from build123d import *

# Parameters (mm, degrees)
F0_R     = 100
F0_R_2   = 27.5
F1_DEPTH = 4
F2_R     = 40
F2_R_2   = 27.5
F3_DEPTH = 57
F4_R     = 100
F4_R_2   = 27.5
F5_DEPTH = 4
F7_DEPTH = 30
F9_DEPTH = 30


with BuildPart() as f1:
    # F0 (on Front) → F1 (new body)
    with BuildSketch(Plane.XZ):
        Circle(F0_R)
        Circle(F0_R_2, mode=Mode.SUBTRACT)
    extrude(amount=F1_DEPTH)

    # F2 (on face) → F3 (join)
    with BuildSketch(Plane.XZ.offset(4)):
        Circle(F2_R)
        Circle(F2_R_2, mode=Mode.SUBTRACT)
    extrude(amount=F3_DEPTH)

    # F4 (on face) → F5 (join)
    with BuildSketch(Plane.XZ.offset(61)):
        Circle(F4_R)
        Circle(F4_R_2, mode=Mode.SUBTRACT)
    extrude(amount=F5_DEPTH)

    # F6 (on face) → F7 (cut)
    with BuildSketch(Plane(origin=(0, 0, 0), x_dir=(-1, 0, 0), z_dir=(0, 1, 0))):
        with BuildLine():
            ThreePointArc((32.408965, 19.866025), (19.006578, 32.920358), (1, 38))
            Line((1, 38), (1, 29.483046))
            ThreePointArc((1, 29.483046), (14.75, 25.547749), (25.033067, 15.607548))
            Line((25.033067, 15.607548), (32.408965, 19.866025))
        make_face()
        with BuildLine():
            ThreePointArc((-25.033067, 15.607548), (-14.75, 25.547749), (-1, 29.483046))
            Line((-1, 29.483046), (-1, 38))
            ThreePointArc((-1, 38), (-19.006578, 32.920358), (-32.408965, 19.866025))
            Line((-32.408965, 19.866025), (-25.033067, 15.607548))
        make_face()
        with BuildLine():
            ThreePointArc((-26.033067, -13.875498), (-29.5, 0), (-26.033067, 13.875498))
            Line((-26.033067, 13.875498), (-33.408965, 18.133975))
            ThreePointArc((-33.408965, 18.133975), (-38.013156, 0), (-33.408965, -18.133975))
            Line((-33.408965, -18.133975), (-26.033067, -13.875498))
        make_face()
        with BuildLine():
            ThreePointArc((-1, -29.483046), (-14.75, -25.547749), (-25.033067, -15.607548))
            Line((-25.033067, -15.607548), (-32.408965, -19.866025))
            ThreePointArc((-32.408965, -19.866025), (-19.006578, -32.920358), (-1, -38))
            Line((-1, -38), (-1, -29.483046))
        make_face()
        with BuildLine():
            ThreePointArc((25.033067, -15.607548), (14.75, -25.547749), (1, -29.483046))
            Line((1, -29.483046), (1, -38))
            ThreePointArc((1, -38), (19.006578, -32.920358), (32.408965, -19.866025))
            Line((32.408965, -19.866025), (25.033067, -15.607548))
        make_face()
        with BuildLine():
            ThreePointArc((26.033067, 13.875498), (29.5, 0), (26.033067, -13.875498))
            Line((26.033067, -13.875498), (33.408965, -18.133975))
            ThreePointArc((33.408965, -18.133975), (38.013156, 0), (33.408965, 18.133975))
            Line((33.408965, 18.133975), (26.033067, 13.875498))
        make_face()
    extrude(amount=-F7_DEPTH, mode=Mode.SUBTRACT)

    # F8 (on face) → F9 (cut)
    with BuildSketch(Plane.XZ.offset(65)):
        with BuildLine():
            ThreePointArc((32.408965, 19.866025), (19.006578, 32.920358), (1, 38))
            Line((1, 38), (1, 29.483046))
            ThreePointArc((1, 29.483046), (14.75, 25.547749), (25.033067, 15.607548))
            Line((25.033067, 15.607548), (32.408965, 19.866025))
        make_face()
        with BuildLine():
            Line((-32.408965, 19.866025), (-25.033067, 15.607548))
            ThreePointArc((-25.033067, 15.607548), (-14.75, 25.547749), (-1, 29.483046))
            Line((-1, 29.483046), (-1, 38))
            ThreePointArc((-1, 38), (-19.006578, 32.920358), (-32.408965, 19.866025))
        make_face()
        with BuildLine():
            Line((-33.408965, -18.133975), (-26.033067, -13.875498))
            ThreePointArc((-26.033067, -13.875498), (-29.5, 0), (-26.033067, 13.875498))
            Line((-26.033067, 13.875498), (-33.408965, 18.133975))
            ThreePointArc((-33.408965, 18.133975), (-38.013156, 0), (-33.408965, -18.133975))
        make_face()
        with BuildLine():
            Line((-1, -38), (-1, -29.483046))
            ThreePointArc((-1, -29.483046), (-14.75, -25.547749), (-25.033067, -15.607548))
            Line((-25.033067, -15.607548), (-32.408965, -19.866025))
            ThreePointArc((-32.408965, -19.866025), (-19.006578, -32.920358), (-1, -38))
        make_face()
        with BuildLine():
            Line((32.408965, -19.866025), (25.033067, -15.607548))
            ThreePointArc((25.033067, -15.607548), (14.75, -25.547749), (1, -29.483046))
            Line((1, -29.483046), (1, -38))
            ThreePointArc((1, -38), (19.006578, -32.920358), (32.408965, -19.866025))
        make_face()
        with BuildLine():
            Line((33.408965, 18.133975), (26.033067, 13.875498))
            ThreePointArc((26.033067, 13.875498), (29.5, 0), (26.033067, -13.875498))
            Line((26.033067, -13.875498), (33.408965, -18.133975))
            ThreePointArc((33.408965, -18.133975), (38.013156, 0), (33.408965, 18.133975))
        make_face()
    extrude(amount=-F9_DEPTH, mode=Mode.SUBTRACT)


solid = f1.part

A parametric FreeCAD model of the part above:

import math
import FreeCAD as App
import Part
import Sketcher
from FreeCAD import Vector

doc = App.newDocument("Part")
params = doc.addObject("Spreadsheet::Sheet", "Params")
for row, (alias, value) in enumerate([
    ("sketch1_diameter", "200 mm"),
    ("sketch1_diameter2", "55 mm"),
    ("pad1_length", "4 mm"),
    ("sketch2_diameter", "80 mm"),
    ("sketch2_diameter2", "55 mm"),
    ("pad2_length", "57 mm"),
    ("sketch3_diameter", "200 mm"),
    ("sketch3_diameter2", "55 mm"),
    ("pad3_length", "4 mm"),
    ("pocket1_length", "30 mm"),
    ("pocket2_length", "30 mm"),
], start=1):
    params.set(f"A{row}", alias)
    params.set(f"B{row}", "=" + value)
    params.setAlias(f"B{row}", alias)

body = doc.addObject("PartDesign::Body", "Body")

# Sketch on XZ plane
sketch1 = body.newObject("Sketcher::SketchObject", "Sketch")
sketch1.AttachmentSupport = (doc.getObject("XZ_Plane"), [""])
sketch1.MapMode = "FlatFace"
sketch1.addGeometry([
    Part.Circle(Vector(0, 0, 0), Vector(0, 0, 1), 100),
    Part.Circle(Vector(0, 0, 0), Vector(0, 0, 1), 28),
], False)
sketch1.addConstraint([
    Sketcher.Constraint("Coincident", 0, 3, -1, 1),
    Sketcher.Constraint("Coincident", 1, 3, -1, 1),
    Sketcher.Constraint("Diameter", 0, 200.0),
    Sketcher.Constraint("Diameter", 1, 55.0),
])
sketch1.setExpression("Constraints[2]", "Params.sketch1_diameter")
sketch1.setExpression("Constraints[3]", "Params.sketch1_diameter2")
pad1 = body.newObject("PartDesign::Pad", "Pad")
pad1.Profile = sketch1
pad1.setExpression("Length", "Params.pad1_length")

# Sketch on XZ plane
sketch2 = body.newObject("Sketcher::SketchObject", "Sketch001")
sketch2.AttachmentSupport = (doc.getObject("XZ_Plane"), [""])
sketch2.MapMode = "FlatFace"
sketch2.AttachmentOffset = App.Placement(Vector(0, 0, 4), App.Rotation())
sketch2.addGeometry([
    Part.Circle(Vector(0, 0, 0), Vector(0, 0, 1), 40),
    Part.Circle(Vector(0, 0, 0), Vector(0, 0, 1), 28),
], False)
sketch2.addConstraint([
    Sketcher.Constraint("Coincident", 0, 3, -1, 1),
    Sketcher.Constraint("Coincident", 1, 3, -1, 1),
    Sketcher.Constraint("Diameter", 0, 80.0),
    Sketcher.Constraint("Diameter", 1, 55.0),
])
sketch2.setExpression("Constraints[2]", "Params.sketch2_diameter")
sketch2.setExpression("Constraints[3]", "Params.sketch2_diameter2")
pad2 = body.newObject("PartDesign::Pad", "Pad001")
pad2.Profile = sketch2
pad2.setExpression("Length", "Params.pad2_length")

# Sketch on XZ plane
sketch3 = body.newObject("Sketcher::SketchObject", "Sketch002")
sketch3.AttachmentSupport = (doc.getObject("XZ_Plane"), [""])
sketch3.MapMode = "FlatFace"
sketch3.AttachmentOffset = App.Placement(Vector(0, 0, 61), App.Rotation())
sketch3.addGeometry([
    Part.Circle(Vector(0, 0, 0), Vector(0, 0, 1), 100),
    Part.Circle(Vector(0, 0, 0), Vector(0, 0, 1), 28),
], False)
sketch3.addConstraint([
    Sketcher.Constraint("Coincident", 0, 3, -1, 1),
    Sketcher.Constraint("Coincident", 1, 3, -1, 1),
    Sketcher.Constraint("Diameter", 0, 200.0),
    Sketcher.Constraint("Diameter", 1, 55.0),
])
sketch3.setExpression("Constraints[2]", "Params.sketch3_diameter")
sketch3.setExpression("Constraints[3]", "Params.sketch3_diameter2")
pad3 = body.newObject("PartDesign::Pad", "Pad002")
pad3.Profile = sketch3
pad3.setExpression("Length", "Params.pad3_length")

# Sketch on XZ plane
sketch4 = body.newObject("Sketcher::SketchObject", "Sketch003")
sketch4.AttachmentSupport = (doc.getObject("XZ_Plane"), [""])
sketch4.MapMode = "FlatFace"
sketch4.addGeometry([
    Part.ArcOfCircle(Part.Circle(Vector(0.000001, 0, 0), Vector(0, 0, 1), 38.013156), math.radians(91.507437), math.radians(148.492565)),  # 0
    Part.LineSegment(Vector(-1, 38, 0), Vector(-1, 29.483046, 0)),  # 1
    Part.ArcOfCircle(Part.Circle(Vector(0.000002, -0.000003, 0), Vector(0, 0, 1), 29.500003), math.radians(91.942605), math.radians(148.057396)),  # 2
    Part.LineSegment(Vector(-25.033067, 15.607548, 0), Vector(-32.408965, 19.866025, 0)),  # 3
    Part.ArcOfCircle(Part.Circle(Vector(-0.000002, -0.000003, 0), Vector(0, 0, 1), 29.500003), math.radians(31.942604), math.radians(88.057395)),  # 4
    Part.LineSegment(Vector(1, 29.483046, 0), Vector(1, 38, 0)),  # 5
    Part.ArcOfCircle(Part.Circle(Vector(-0.000001, 0, 0), Vector(0, 0, 1), 38.013156), math.radians(31.507435), math.radians(88.492563)),  # 6
    Part.LineSegment(Vector(32.408965, 19.866025, 0), Vector(25.033067, 15.607548, 0)),  # 7
    Part.ArcOfCircle(Part.Circle(Vector(-0.000003, 0, 0), Vector(0, 0, 1), 29.500003), math.radians(-28.057396), math.radians(28.057396)),  # 8
    Part.LineSegment(Vector(26.033067, 13.875498, 0), Vector(33.408965, 18.133975, 0)),  # 9
    Part.ArcOfCircle(Part.Circle(Vector(0.000004, 0, 0), Vector(0, 0, 1), 38.013152), math.radians(-28.492568), math.radians(28.492568)),  # 10
    Part.LineSegment(Vector(33.408965, -18.133975, 0), Vector(26.033067, -13.875498, 0)),  # 11
    Part.ArcOfCircle(Part.Circle(Vector(-0.000002, 0.000003, 0), Vector(0, 0, 1), 29.500003), math.radians(-88.057395), math.radians(-31.942604)),  # 12
    Part.LineSegment(Vector(25.033067, -15.607548, 0), Vector(32.408965, -19.866025, 0)),  # 13
    Part.ArcOfCircle(Part.Circle(Vector(-0.000001, 0, 0), Vector(0, 0, 1), 38.013156), math.radians(-88.492563), math.radians(-31.507435)),  # 14
    Part.LineSegment(Vector(1, -38, 0), Vector(1, -29.483046, 0)),  # 15
    Part.ArcOfCircle(Part.Circle(Vector(0.000002, 0.000003, 0), Vector(0, 0, 1), 29.500003), math.radians(-148.057396), math.radians(-91.942605)),  # 16
    Part.LineSegment(Vector(-1, -29.483046, 0), Vector(-1, -38, 0)),  # 17
    Part.ArcOfCircle(Part.Circle(Vector(0.000001, 0, 0), Vector(0, 0, 1), 38.013156), math.radians(-148.492565), math.radians(-91.507437)),  # 18
    Part.LineSegment(Vector(-32.408965, -19.866025, 0), Vector(-25.033067, -15.607548, 0)),  # 19
    Part.ArcOfCircle(Part.Circle(Vector(0.000003, 0, 0), Vector(0, 0, 1), 29.500003), math.radians(151.942604), math.radians(208.057396)),  # 20
    Part.LineSegment(Vector(-26.033067, -13.875498, 0), Vector(-33.408965, -18.133975, 0)),  # 21
    Part.ArcOfCircle(Part.Circle(Vector(-0.000004, 0, 0), Vector(0, 0, 1), 38.013152), math.radians(151.507432), math.radians(208.492568)),  # 22
    Part.LineSegment(Vector(-33.408965, 18.133975, 0), Vector(-26.033067, 13.875498, 0)),  # 23
], False)
sketch4.addConstraint([
    Sketcher.Constraint("Coincident", 0, 1, 1, 1),
    Sketcher.Constraint("Coincident", 1, 2, 2, 1),
    Sketcher.Constraint("Coincident", 2, 2, 3, 1),
    Sketcher.Constraint("Coincident", 3, 2, 0, 2),
    Sketcher.Constraint("Coincident", 4, 2, 5, 1),
    Sketcher.Constraint("Coincident", 5, 2, 6, 2),
    Sketcher.Constraint("Coincident", 6, 1, 7, 1),
    Sketcher.Constraint("Coincident", 7, 2, 4, 1),
    Sketcher.Constraint("Coincident", 8, 2, 9, 1),
    Sketcher.Constraint("Coincident", 9, 2, 10, 2),
    Sketcher.Constraint("Coincident", 10, 1, 11, 1),
    Sketcher.Constraint("Coincident", 11, 2, 8, 1),
    Sketcher.Constraint("Coincident", 12, 2, 13, 1),
    Sketcher.Constraint("Coincident", 13, 2, 14, 2),
    Sketcher.Constraint("Coincident", 14, 1, 15, 1),
    Sketcher.Constraint("Coincident", 15, 2, 12, 1),
    Sketcher.Constraint("Coincident", 16, 2, 17, 1),
    Sketcher.Constraint("Coincident", 17, 2, 18, 2),
    Sketcher.Constraint("Coincident", 18, 1, 19, 1),
    Sketcher.Constraint("Coincident", 19, 2, 16, 1),
    Sketcher.Constraint("Coincident", 20, 2, 21, 1),
    Sketcher.Constraint("Coincident", 21, 2, 22, 2),
    Sketcher.Constraint("Coincident", 22, 1, 23, 1),
    Sketcher.Constraint("Coincident", 23, 2, 20, 1),
    Sketcher.Constraint("Vertical", 1),
    Sketcher.Constraint("Vertical", 5),
    Sketcher.Constraint("Vertical", 15),
    Sketcher.Constraint("Vertical", 17),
    Sketcher.Constraint("Coincident", 0, 3, -1, 1),
    Sketcher.Constraint("Coincident", 2, 3, -1, 1),
    Sketcher.Constraint("Coincident", 4, 3, -1, 1),
    Sketcher.Constraint("Coincident", 6, 3, -1, 1),
    Sketcher.Constraint("Coincident", 8, 3, -1, 1),
    Sketcher.Constraint("Coincident", 10, 3, -1, 1),
    Sketcher.Constraint("Coincident", 12, 3, -1, 1),
    Sketcher.Constraint("Coincident", 14, 3, -1, 1),
    Sketcher.Constraint("Coincident", 16, 3, -1, 1),
    Sketcher.Constraint("Coincident", 18, 3, -1, 1),
    Sketcher.Constraint("Coincident", 20, 3, -1, 1),
    Sketcher.Constraint("Coincident", 22, 3, -1, 1),
    Sketcher.Constraint("DistanceX", 0, 1, -1, 1, 1.0),
    Sketcher.Constraint("DistanceY", -1, 1, 0, 1, 38.0),
    Sketcher.Constraint("DistanceX", -1, 1, 4, 2, 1.0),
    Sketcher.Constraint("DistanceY", -1, 1, 5, 2, 38.0),
    Sketcher.Constraint("DistanceX", -1, 1, 14, 1, 1.0),
    Sketcher.Constraint("DistanceY", 14, 1, -1, 1, 38.0),
    Sketcher.Constraint("DistanceX", 16, 2, -1, 1, 1.0),
    Sketcher.Constraint("DistanceY", 17, 2, -1, 1, 38.0),
    Sketcher.Constraint("DistanceX", 7, 2, 8, 2, 1.0),
    Sketcher.Constraint("DistanceX", 6, 1, 9, 2, 1.0),
    Sketcher.Constraint("DistanceX", 12, 2, 11, 2, 1.0),
    Sketcher.Constraint("DistanceX", 13, 2, 10, 1, 1.0),
    Sketcher.Constraint("DistanceX", 20, 2, 19, 2, 1.0),
    Sketcher.Constraint("DistanceX", 21, 2, 18, 1, 1.0),
    Sketcher.Constraint("DistanceX", 22, 1, 3, 2, 1.0),
    Sketcher.Constraint("DistanceX", 23, 2, 2, 2, 1.0),
    Sketcher.Constraint("Radius", 10, 38.013152),
    Sketcher.Constraint("Radius", 22, 38.013152),
    Sketcher.Constraint("Radius", 2, 29.500003),
    Sketcher.Constraint("Radius", 4, 29.500003),
    Sketcher.Constraint("Radius", 8, 29.500003),
    Sketcher.Constraint("Radius", 12, 29.500003),
    Sketcher.Constraint("Radius", 16, 29.500003),
    Sketcher.Constraint("Radius", 20, 29.500003),
    Sketcher.Constraint("DistanceY", -1, 1, 8, 2, 13.875498),
    Sketcher.Constraint("DistanceY", 20, 2, -1, 1, 13.875498),
    Sketcher.Constraint("DistanceY", 2, 2, 1, 2, 13.875498),
    Sketcher.Constraint("DistanceX", 3, 2, 2, 2, 7.375898),
    Sketcher.Constraint("DistanceX", 7, 2, 6, 1, 7.375898),
    Sketcher.Constraint("DistanceX", 8, 2, 10, 1, 7.375898),
    Sketcher.Constraint("DistanceX", 11, 2, 10, 1, 7.375898),
    Sketcher.Constraint("DistanceX", 18, 1, 2, 2, 7.375898),
])
pocket1 = body.newObject("PartDesign::Pocket", "Pocket")
pocket1.Profile = sketch4
pocket1.setExpression("Length", "Params.pocket1_length")
pocket1.Reversed = True

# Sketch on XZ plane
sketch5 = body.newObject("Sketcher::SketchObject", "Sketch004")
sketch5.AttachmentSupport = (doc.getObject("XZ_Plane"), [""])
sketch5.MapMode = "FlatFace"
sketch5.AttachmentOffset = App.Placement(Vector(0, 0, 65), App.Rotation())
sketch5.addGeometry([
    Part.ArcOfCircle(Part.Circle(Vector(-0.000001, 0, 0), Vector(0, 0, 1), 38.013156), math.radians(31.507435), math.radians(88.492563)),  # 0
    Part.LineSegment(Vector(1, 38, 0), Vector(1, 29.483046, 0)),  # 1
    Part.ArcOfCircle(Part.Circle(Vector(-0.000002, -0.000003, 0), Vector(0, 0, 1), 29.500003), math.radians(31.942604), math.radians(88.057395)),  # 2
    Part.LineSegment(Vector(25.033067, 15.607548, 0), Vector(32.408965, 19.866025, 0)),  # 3
    Part.LineSegment(Vector(-32.408965, 19.866025, 0), Vector(-25.033067, 15.607548, 0)),  # 4
    Part.ArcOfCircle(Part.Circle(Vector(0.000002, -0.000003, 0), Vector(0, 0, 1), 29.500003), math.radians(91.942605), math.radians(148.057396)),  # 5
    Part.LineSegment(Vector(-1, 29.483046, 0), Vector(-1, 38, 0)),  # 6
    Part.ArcOfCircle(Part.Circle(Vector(0.000001, 0, 0), Vector(0, 0, 1), 38.013156), math.radians(91.507437), math.radians(148.492565)),  # 7
    Part.LineSegment(Vector(-33.408965, -18.133975, 0), Vector(-26.033067, -13.875498, 0)),  # 8
    Part.ArcOfCircle(Part.Circle(Vector(0.000003, 0, 0), Vector(0, 0, 1), 29.500003), math.radians(151.942604), math.radians(208.057396)),  # 9
    Part.LineSegment(Vector(-26.033067, 13.875498, 0), Vector(-33.408965, 18.133975, 0)),  # 10
    Part.ArcOfCircle(Part.Circle(Vector(-0.000004, 0, 0), Vector(0, 0, 1), 38.013152), math.radians(151.507432), math.radians(208.492568)),  # 11
    Part.LineSegment(Vector(-1, -38, 0), Vector(-1, -29.483046, 0)),  # 12
    Part.ArcOfCircle(Part.Circle(Vector(0.000002, 0.000003, 0), Vector(0, 0, 1), 29.500003), math.radians(-148.057396), math.radians(-91.942605)),  # 13
    Part.LineSegment(Vector(-25.033067, -15.607548, 0), Vector(-32.408965, -19.866025, 0)),  # 14
    Part.ArcOfCircle(Part.Circle(Vector(0.000001, 0, 0), Vector(0, 0, 1), 38.013156), math.radians(-148.492565), math.radians(-91.507437)),  # 15
    Part.LineSegment(Vector(32.408965, -19.866025, 0), Vector(25.033067, -15.607548, 0)),  # 16
    Part.ArcOfCircle(Part.Circle(Vector(-0.000002, 0.000003, 0), Vector(0, 0, 1), 29.500003), math.radians(-88.057395), math.radians(-31.942604)),  # 17
    Part.LineSegment(Vector(1, -29.483046, 0), Vector(1, -38, 0)),  # 18
    Part.ArcOfCircle(Part.Circle(Vector(-0.000001, 0, 0), Vector(0, 0, 1), 38.013156), math.radians(-88.492563), math.radians(-31.507435)),  # 19
    Part.LineSegment(Vector(33.408965, 18.133975, 0), Vector(26.033067, 13.875498, 0)),  # 20
    Part.ArcOfCircle(Part.Circle(Vector(-0.000003, 0, 0), Vector(0, 0, 1), 29.500003), math.radians(-28.057396), math.radians(28.057396)),  # 21
    Part.LineSegment(Vector(26.033067, -13.875498, 0), Vector(33.408965, -18.133975, 0)),  # 22
    Part.ArcOfCircle(Part.Circle(Vector(0.000004, 0, 0), Vector(0, 0, 1), 38.013152), math.radians(-28.492568), math.radians(28.492568)),  # 23
], False)
sketch5.addConstraint([
    Sketcher.Constraint("Coincident", 0, 2, 1, 1),
    Sketcher.Constraint("Coincident", 1, 2, 2, 2),
    Sketcher.Constraint("Coincident", 2, 1, 3, 1),
    Sketcher.Constraint("Coincident", 3, 2, 0, 1),
    Sketcher.Constraint("Coincident", 4, 2, 5, 2),
    Sketcher.Constraint("Coincident", 5, 1, 6, 1),
    Sketcher.Constraint("Coincident", 6, 2, 7, 1),
    Sketcher.Constraint("Coincident", 7, 2, 4, 1),
    Sketcher.Constraint("Coincident", 8, 2, 9, 2),
    Sketcher.Constraint("Coincident", 9, 1, 10, 1),
    Sketcher.Constraint("Coincident", 10, 2, 11, 1),
    Sketcher.Constraint("Coincident", 11, 2, 8, 1),
    Sketcher.Constraint("Coincident", 12, 2, 13, 2),
    Sketcher.Constraint("Coincident", 13, 1, 14, 1),
    Sketcher.Constraint("Coincident", 14, 2, 15, 1),
    Sketcher.Constraint("Coincident", 15, 2, 12, 1),
    Sketcher.Constraint("Coincident", 16, 2, 17, 2),
    Sketcher.Constraint("Coincident", 17, 1, 18, 1),
    Sketcher.Constraint("Coincident", 18, 2, 19, 1),
    Sketcher.Constraint("Coincident", 19, 2, 16, 1),
    Sketcher.Constraint("Coincident", 20, 2, 21, 2),
    Sketcher.Constraint("Coincident", 21, 1, 22, 1),
    Sketcher.Constraint("Coincident", 22, 2, 23, 1),
    Sketcher.Constraint("Coincident", 23, 2, 20, 1),
    Sketcher.Constraint("Vertical", 1),
    Sketcher.Constraint("Vertical", 6),
    Sketcher.Constraint("Vertical", 12),
    Sketcher.Constraint("Vertical", 18),
    Sketcher.Constraint("Coincident", 0, 3, -1, 1),
    Sketcher.Constraint("Coincident", 2, 3, -1, 1),
    Sketcher.Constraint("Coincident", 5, 3, -1, 1),
    Sketcher.Constraint("Coincident", 7, 3, -1, 1),
    Sketcher.Constraint("Coincident", 9, 3, -1, 1),
    Sketcher.Constraint("Coincident", 11, 3, -1, 1),
    Sketcher.Constraint("Coincident", 13, 3, -1, 1),
    Sketcher.Constraint("Coincident", 15, 3, -1, 1),
    Sketcher.Constraint("Coincident", 17, 3, -1, 1),
    Sketcher.Constraint("Coincident", 19, 3, -1, 1),
    Sketcher.Constraint("Coincident", 21, 3, -1, 1),
    Sketcher.Constraint("Coincident", 23, 3, -1, 1),
    Sketcher.Constraint("DistanceX", -1, 1, 0, 2, 1.0),
    Sketcher.Constraint("DistanceY", -1, 1, 0, 2, 38.0),
    Sketcher.Constraint("DistanceX", 5, 1, -1, 1, 1.0),
    Sketcher.Constraint("DistanceY", -1, 1, 6, 2, 38.0),
    Sketcher.Constraint("DistanceX", 12, 2, -1, 1, 1.0),
    Sketcher.Constraint("DistanceY", 15, 2, -1, 1, 38.0),
    Sketcher.Constraint("DistanceX", -1, 1, 17, 1, 1.0),
    Sketcher.Constraint("DistanceY", 18, 2, -1, 1, 38.0),
    Sketcher.Constraint("DistanceX", 9, 1, 4, 2, 1.0),
    Sketcher.Constraint("DistanceX", 10, 2, 7, 2, 1.0),
    Sketcher.Constraint("DistanceX", 8, 2, 13, 1, 1.0),
    Sketcher.Constraint("DistanceX", 11, 2, 14, 2, 1.0),
    Sketcher.Constraint("DistanceX", 2, 1, 20, 2, 1.0),
    Sketcher.Constraint("DistanceX", 16, 2, 21, 1, 1.0),
    Sketcher.Constraint("DistanceX", 19, 2, 22, 2, 1.0),
    Sketcher.Constraint("DistanceX", 3, 2, 23, 2, 1.0),
    Sketcher.Constraint("Radius", 11, 38.013152),
    Sketcher.Constraint("Radius", 23, 38.013152),
    Sketcher.Constraint("Radius", 2, 29.500003),
    Sketcher.Constraint("Radius", 5, 29.500003),
    Sketcher.Constraint("Radius", 9, 29.500003),
    Sketcher.Constraint("Radius", 13, 29.500003),
    Sketcher.Constraint("Radius", 17, 29.500003),
    Sketcher.Constraint("Radius", 21, 29.500003),
    Sketcher.Constraint("DistanceY", -1, 1, 9, 1, 13.875498),
    Sketcher.Constraint("DistanceY", 21, 1, -1, 1, 13.875498),
    Sketcher.Constraint("DistanceY", 2, 1, 1, 2, 13.875498),
    Sketcher.Constraint("DistanceX", 2, 1, 3, 2, 7.375898),
    Sketcher.Constraint("DistanceX", 7, 2, 4, 2, 7.375898),
    Sketcher.Constraint("DistanceY", 8, 2, 0, 3, 13.875498),
    Sketcher.Constraint("DistanceX", 11, 2, 8, 2, 7.375898),
    Sketcher.Constraint("DistanceX", 16, 2, 19, 2, 7.375898),
])
pocket2 = body.newObject("PartDesign::Pocket", "Pocket001")
pocket2.Profile = sketch5
pocket2.setExpression("Length", "Params.pocket2_length")

doc.recompute()
